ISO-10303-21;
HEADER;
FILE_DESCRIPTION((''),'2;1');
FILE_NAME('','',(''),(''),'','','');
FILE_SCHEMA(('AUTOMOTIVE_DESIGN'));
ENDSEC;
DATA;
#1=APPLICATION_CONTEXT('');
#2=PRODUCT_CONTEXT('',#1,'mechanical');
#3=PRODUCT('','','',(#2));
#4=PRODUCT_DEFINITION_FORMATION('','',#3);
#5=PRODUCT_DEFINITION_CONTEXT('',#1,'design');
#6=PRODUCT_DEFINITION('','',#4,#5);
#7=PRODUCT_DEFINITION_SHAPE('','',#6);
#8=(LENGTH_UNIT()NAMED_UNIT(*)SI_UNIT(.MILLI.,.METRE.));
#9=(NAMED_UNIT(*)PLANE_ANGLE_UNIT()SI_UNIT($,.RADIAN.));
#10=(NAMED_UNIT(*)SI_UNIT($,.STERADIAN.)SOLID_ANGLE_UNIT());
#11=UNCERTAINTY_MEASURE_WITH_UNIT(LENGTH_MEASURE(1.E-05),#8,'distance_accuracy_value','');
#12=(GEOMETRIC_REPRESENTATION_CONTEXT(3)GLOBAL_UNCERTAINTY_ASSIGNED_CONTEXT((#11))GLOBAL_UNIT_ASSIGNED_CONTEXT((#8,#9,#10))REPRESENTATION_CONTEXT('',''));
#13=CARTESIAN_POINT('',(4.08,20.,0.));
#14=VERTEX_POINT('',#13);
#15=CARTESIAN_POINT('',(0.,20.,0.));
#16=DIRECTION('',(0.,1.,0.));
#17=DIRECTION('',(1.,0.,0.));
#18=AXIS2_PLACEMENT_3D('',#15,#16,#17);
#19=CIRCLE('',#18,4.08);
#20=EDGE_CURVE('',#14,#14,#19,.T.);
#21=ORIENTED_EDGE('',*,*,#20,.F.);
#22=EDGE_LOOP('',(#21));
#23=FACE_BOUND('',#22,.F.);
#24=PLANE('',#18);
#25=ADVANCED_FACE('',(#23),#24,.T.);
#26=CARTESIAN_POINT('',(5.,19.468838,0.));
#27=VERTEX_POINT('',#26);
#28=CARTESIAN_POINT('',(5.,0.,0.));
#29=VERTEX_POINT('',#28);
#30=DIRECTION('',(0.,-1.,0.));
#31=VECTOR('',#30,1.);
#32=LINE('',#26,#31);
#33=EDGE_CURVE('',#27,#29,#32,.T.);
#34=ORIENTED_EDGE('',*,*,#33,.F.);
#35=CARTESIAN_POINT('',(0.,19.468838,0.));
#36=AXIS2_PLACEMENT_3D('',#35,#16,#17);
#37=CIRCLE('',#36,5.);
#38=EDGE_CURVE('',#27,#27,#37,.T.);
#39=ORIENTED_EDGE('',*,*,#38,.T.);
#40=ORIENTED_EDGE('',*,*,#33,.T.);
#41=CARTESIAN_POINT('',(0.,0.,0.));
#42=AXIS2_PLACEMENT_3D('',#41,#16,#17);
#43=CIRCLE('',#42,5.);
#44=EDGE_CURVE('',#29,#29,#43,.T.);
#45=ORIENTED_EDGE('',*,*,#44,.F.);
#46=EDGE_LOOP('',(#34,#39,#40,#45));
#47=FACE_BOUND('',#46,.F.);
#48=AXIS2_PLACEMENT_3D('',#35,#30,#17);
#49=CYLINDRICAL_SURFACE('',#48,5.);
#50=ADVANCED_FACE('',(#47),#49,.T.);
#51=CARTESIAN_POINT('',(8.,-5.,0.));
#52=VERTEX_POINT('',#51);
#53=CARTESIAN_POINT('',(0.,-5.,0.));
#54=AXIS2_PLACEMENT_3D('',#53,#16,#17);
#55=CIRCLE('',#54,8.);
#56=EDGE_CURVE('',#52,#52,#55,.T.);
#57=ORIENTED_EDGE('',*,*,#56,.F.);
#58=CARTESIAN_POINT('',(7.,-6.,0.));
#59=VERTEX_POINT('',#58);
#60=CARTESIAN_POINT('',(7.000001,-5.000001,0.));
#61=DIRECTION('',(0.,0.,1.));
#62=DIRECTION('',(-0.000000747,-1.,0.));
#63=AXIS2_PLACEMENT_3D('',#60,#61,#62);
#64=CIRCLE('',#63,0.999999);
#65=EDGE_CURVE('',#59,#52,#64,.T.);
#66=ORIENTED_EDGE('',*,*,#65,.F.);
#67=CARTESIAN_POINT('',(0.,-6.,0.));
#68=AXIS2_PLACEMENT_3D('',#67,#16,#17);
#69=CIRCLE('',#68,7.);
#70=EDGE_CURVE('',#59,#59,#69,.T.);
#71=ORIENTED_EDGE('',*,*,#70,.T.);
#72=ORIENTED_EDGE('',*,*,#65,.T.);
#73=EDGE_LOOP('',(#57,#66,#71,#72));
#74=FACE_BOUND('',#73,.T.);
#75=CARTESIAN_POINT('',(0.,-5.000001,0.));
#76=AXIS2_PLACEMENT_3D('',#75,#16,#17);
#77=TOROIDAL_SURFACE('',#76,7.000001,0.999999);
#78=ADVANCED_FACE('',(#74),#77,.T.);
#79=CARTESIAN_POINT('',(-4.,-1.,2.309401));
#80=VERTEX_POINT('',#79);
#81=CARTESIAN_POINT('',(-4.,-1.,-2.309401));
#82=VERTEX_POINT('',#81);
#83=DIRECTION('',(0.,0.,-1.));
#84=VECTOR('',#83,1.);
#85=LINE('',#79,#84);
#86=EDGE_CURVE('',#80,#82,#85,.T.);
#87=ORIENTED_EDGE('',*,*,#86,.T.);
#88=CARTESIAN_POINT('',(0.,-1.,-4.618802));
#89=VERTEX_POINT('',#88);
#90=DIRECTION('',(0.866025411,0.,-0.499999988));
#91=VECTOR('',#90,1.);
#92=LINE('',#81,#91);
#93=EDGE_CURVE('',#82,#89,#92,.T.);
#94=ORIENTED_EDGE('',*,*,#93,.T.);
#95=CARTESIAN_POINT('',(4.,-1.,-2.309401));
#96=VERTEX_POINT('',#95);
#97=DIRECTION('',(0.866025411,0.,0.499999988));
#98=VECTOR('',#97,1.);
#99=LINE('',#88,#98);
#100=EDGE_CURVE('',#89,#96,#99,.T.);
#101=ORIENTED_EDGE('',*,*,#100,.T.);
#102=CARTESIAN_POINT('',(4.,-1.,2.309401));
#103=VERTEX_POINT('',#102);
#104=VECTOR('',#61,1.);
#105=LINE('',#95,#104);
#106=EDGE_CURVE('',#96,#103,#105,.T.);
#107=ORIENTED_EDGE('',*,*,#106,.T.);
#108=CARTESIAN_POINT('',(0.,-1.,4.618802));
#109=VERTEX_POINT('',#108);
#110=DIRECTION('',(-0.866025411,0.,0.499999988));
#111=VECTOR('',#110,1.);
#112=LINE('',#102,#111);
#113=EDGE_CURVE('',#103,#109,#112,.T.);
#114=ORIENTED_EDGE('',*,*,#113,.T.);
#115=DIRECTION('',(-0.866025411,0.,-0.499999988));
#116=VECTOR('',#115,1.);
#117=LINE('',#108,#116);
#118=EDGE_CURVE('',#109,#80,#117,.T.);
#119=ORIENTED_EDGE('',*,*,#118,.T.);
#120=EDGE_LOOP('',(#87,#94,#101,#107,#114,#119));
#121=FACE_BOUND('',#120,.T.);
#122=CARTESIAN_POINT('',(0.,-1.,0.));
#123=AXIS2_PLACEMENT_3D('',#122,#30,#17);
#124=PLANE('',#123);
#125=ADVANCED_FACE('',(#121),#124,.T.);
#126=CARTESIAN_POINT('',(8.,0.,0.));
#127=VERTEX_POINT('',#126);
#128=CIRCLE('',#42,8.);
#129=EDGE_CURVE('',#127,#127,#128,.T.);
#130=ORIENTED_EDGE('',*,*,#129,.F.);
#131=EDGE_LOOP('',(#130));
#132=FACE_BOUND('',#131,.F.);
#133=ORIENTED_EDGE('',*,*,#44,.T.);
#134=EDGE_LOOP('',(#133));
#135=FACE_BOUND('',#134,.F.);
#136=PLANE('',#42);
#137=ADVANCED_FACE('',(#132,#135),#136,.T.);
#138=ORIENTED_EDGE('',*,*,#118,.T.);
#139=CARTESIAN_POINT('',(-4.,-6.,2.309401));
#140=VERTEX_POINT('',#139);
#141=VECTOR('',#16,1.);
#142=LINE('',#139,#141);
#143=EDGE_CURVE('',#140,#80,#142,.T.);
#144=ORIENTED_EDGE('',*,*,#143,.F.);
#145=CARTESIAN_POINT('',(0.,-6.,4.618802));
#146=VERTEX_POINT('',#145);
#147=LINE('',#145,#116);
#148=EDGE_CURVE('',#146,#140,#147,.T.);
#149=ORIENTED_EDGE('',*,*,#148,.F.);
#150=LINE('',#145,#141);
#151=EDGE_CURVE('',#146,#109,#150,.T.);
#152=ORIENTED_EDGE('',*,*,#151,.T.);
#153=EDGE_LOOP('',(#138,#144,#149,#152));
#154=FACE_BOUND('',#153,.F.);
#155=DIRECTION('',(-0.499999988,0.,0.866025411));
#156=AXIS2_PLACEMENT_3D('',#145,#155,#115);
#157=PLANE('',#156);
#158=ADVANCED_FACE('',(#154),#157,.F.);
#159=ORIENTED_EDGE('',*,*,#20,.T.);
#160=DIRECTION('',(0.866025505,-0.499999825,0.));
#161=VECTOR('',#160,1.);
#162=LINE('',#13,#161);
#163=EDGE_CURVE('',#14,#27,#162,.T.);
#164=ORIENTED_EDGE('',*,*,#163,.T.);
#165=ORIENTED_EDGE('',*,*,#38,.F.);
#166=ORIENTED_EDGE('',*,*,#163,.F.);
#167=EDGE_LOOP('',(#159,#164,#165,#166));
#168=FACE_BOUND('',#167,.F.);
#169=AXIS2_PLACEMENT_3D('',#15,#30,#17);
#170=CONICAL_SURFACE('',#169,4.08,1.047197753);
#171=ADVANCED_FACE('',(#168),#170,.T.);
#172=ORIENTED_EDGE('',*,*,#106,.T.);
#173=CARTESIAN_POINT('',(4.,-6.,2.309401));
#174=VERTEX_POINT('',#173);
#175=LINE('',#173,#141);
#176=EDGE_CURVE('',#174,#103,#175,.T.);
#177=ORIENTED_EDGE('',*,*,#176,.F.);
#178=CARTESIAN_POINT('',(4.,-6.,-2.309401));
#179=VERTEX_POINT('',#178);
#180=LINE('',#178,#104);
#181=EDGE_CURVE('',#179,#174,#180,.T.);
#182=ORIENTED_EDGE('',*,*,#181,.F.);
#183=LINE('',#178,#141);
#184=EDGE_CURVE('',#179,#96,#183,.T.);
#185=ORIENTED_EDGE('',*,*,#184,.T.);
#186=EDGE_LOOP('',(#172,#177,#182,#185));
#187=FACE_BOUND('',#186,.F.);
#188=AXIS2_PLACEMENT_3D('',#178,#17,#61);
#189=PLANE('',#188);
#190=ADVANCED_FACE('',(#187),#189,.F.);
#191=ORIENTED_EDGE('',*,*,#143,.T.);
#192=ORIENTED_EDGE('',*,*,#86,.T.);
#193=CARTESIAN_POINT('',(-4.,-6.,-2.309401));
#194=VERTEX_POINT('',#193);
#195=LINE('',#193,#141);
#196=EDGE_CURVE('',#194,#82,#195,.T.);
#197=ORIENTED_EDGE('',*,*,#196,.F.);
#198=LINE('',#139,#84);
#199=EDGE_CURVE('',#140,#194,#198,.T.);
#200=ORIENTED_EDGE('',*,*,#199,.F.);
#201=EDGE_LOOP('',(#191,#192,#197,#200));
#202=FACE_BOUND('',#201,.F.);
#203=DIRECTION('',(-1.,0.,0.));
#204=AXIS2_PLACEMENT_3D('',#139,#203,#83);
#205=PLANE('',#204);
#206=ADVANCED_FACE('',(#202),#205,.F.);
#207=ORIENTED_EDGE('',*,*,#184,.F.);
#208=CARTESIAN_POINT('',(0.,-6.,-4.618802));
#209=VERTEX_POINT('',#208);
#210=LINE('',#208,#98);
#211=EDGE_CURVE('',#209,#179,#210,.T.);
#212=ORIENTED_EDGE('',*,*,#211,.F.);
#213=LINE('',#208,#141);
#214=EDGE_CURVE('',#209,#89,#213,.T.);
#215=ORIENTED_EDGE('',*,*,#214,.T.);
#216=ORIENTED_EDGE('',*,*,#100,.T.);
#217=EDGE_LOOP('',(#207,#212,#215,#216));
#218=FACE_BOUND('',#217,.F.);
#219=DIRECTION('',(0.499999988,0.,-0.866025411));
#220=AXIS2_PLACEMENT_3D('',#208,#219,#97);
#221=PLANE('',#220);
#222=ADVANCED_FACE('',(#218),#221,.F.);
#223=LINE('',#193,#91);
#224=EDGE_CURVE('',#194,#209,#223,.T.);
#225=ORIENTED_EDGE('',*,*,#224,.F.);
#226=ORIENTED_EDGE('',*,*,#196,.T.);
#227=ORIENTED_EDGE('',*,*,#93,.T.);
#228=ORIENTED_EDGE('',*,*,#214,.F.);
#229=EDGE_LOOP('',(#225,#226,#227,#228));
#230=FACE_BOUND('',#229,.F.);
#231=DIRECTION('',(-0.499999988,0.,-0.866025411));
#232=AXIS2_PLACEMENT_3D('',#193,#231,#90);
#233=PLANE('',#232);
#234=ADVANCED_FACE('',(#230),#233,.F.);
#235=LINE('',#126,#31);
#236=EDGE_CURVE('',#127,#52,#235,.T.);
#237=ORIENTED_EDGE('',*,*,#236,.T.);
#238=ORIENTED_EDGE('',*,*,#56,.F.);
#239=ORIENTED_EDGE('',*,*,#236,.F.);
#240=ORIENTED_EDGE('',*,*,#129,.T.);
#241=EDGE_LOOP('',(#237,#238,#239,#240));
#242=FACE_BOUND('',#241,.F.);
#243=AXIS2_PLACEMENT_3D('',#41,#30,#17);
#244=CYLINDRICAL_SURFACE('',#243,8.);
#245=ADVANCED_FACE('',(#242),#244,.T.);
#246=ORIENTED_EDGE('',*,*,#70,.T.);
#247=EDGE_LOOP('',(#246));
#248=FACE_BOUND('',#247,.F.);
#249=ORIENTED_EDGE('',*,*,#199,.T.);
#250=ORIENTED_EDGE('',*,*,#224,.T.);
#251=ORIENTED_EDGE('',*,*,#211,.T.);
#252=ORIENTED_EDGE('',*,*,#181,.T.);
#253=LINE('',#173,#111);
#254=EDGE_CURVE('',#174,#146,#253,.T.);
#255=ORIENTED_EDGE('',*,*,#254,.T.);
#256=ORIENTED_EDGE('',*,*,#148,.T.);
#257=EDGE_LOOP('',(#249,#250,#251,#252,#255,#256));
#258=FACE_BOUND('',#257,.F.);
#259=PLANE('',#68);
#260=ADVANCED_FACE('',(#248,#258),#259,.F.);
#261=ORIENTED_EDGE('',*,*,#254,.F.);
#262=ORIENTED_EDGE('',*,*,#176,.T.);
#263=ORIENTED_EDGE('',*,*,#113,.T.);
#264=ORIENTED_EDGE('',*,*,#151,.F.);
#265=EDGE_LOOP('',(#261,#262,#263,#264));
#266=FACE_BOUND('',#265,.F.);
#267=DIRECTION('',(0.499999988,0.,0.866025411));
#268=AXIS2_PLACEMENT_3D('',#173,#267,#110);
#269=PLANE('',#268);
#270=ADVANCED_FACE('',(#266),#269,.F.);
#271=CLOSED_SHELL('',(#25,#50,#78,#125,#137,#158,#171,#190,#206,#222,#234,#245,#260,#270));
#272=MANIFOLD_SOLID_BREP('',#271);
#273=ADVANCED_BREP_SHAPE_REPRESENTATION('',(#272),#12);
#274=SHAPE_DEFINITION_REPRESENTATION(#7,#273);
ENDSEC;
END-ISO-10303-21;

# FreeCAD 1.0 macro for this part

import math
import FreeCAD as App
import Part
import Sketcher
Q = App.Units.Quantity


def add_polygon(sketch, points):
    """Adds a closed chain of lines whose ends are joined by coincident constraints."""
    first, n = sketch.GeometryCount, len(points)
    for a, b in zip(points, points[1:] + points[:1]):
        sketch.addGeometry(Part.LineSegment(App.Vector(*a, 0), App.Vector(*b, 0)), False)
    for i in range(n):
        sketch.addConstraint(Sketcher.Constraint("Coincident", first + i, 2, first + (i + 1) % n, 1))

doc = App.newDocument("Part")
body = doc.addObject("PartDesign::Body", "Body")

# Sketch on XY plane
sketch1 = body.newObject("Sketcher::SketchObject", "Sketch")
sketch1.AttachmentSupport = (doc.getObject("XY_Plane"), [""])
sketch1.MapMode = "FlatFace"
sketch1.addGeometry([
    Part.LineSegment(App.Vector(8, 0, 0), App.Vector(5, 0, 0)),  # 0
    Part.LineSegment(App.Vector(5, 0, 0), App.Vector(5, 19.5, 0)),  # 1
    Part.LineSegment(App.Vector(5, 19.5, 0), App.Vector(4.1, 20, 0)),  # 2
    Part.LineSegment(App.Vector(4.1, 20, 0), App.Vector(0, 20, 0)),  # 3
    Part.LineSegment(App.Vector(0, 20, 0), App.Vector(0, -6, 0)),  # 4
    Part.LineSegment(App.Vector(0, -6, 0), App.Vector(7, -6, 0)),  # 5
    Part.ArcOfCircle(Part.Circle(App.Vector(7, -5, 0), App.Vector(0, 0, 1), 1), math.radians(-90), math.radians(0)),  # 6
    Part.LineSegment(App.Vector(8, -5, 0), App.Vector(8, 0, 0)),  # 7
], False)
sketch1.addConstraint([
    Sketcher.Constraint("Coincident", 0, 2, 1, 1),
    Sketcher.Constraint("Coincident", 1, 2, 2, 1),
    Sketcher.Constraint("Coincident", 2, 2, 3, 1),
    Sketcher.Constraint("Coincident", 3, 2, 4, 1),
    Sketcher.Constraint("Coincident", 4, 2, 5, 1),
    Sketcher.Constraint("Tangent", 5, 2, 6, 1),
    Sketcher.Constraint("Tangent", 6, 2, 7, 1),
    Sketcher.Constraint("Coincident", 7, 2, 0, 1),
    Sketcher.Constraint("Horizontal", 0),
    Sketcher.Constraint("Vertical", 1),
    Sketcher.Constraint("Horizontal", 3),
    Sketcher.Constraint("Vertical", 4),
    Sketcher.Constraint("Horizontal", 5),
    Sketcher.Constraint("Vertical", 7),
    Sketcher.Constraint("PointOnObject", 0, 2, -1),
    Sketcher.Constraint("PointOnObject", 3, 2, -2),
    Sketcher.Constraint("Radius", 6, Q("0.999999 mm")),
    Sketcher.Constraint("DistanceX", 0, 2, 0, 1, Q("3 mm")),
    Sketcher.Constraint("DistanceX", 5, 1, 5, 2, Q("7 mm")),
    Sketcher.Constraint("DistanceY", 4, 2, 4, 1, Q("26 mm")),
    Sketcher.Constraint("DistanceY", 7, 1, 7, 2, Q("5 mm")),
    Sketcher.Constraint("Angle", 2, Q("150.000012 deg")),
    Sketcher.Constraint("DistanceX", 3, 2, 3, 1, Q("4.08 mm")),
])
revolution = body.newObject("PartDesign::Revolution", "Revolution")
revolution.Profile = sketch1
revolution.ReferenceAxis = (sketch1, ["V_Axis"])
revolution.Angle = 360

# Sketch on XZ plane
sketch2 = body.newObject("Sketcher::SketchObject", "Sketch001")
sketch2.AttachmentSupport = (doc.getObject("XZ_Plane"), [""])
sketch2.MapMode = "FlatFace"
sketch2.AttachmentOffset = App.Placement(App.Vector(0, 0, 6), App.Rotation())
add_polygon(sketch2, [(-4, 2.3), (-4, -2.3), (0, -4.6), (4, -2.3), (4, 2.3), (0, 4.6)])  # lines 0-5
sketch2.addConstraint([
    Sketcher.Constraint("Vertical", 0),
    Sketcher.Constraint("Vertical", 3),
    Sketcher.Constraint("Symmetric", 0, 2, 3, 2, -1, 1),
    Sketcher.Constraint("Symmetric", 1, 2, 4, 2, -1, 1),
    Sketcher.Constraint("PointOnObject", 1, 2, -2),
    Sketcher.Constraint("Parallel", 2, 5),
    Sketcher.Constraint("Horizontal", 0, 2, 2, 2),
    Sketcher.Constraint("Angle", 1, Q("-29.999999 deg")),
    Sketcher.Constraint("DistanceX", 0, 2, -1, 1, Q("4 mm")),
    Sketcher.Constraint("DistanceY", 0, 2, 0, 1, Q("4.618802 mm")),
])
pocket1 = body.newObject("PartDesign::Pocket", "Pocket")
pocket1.Profile = sketch2
pocket1.Length = 5

doc.recompute()
